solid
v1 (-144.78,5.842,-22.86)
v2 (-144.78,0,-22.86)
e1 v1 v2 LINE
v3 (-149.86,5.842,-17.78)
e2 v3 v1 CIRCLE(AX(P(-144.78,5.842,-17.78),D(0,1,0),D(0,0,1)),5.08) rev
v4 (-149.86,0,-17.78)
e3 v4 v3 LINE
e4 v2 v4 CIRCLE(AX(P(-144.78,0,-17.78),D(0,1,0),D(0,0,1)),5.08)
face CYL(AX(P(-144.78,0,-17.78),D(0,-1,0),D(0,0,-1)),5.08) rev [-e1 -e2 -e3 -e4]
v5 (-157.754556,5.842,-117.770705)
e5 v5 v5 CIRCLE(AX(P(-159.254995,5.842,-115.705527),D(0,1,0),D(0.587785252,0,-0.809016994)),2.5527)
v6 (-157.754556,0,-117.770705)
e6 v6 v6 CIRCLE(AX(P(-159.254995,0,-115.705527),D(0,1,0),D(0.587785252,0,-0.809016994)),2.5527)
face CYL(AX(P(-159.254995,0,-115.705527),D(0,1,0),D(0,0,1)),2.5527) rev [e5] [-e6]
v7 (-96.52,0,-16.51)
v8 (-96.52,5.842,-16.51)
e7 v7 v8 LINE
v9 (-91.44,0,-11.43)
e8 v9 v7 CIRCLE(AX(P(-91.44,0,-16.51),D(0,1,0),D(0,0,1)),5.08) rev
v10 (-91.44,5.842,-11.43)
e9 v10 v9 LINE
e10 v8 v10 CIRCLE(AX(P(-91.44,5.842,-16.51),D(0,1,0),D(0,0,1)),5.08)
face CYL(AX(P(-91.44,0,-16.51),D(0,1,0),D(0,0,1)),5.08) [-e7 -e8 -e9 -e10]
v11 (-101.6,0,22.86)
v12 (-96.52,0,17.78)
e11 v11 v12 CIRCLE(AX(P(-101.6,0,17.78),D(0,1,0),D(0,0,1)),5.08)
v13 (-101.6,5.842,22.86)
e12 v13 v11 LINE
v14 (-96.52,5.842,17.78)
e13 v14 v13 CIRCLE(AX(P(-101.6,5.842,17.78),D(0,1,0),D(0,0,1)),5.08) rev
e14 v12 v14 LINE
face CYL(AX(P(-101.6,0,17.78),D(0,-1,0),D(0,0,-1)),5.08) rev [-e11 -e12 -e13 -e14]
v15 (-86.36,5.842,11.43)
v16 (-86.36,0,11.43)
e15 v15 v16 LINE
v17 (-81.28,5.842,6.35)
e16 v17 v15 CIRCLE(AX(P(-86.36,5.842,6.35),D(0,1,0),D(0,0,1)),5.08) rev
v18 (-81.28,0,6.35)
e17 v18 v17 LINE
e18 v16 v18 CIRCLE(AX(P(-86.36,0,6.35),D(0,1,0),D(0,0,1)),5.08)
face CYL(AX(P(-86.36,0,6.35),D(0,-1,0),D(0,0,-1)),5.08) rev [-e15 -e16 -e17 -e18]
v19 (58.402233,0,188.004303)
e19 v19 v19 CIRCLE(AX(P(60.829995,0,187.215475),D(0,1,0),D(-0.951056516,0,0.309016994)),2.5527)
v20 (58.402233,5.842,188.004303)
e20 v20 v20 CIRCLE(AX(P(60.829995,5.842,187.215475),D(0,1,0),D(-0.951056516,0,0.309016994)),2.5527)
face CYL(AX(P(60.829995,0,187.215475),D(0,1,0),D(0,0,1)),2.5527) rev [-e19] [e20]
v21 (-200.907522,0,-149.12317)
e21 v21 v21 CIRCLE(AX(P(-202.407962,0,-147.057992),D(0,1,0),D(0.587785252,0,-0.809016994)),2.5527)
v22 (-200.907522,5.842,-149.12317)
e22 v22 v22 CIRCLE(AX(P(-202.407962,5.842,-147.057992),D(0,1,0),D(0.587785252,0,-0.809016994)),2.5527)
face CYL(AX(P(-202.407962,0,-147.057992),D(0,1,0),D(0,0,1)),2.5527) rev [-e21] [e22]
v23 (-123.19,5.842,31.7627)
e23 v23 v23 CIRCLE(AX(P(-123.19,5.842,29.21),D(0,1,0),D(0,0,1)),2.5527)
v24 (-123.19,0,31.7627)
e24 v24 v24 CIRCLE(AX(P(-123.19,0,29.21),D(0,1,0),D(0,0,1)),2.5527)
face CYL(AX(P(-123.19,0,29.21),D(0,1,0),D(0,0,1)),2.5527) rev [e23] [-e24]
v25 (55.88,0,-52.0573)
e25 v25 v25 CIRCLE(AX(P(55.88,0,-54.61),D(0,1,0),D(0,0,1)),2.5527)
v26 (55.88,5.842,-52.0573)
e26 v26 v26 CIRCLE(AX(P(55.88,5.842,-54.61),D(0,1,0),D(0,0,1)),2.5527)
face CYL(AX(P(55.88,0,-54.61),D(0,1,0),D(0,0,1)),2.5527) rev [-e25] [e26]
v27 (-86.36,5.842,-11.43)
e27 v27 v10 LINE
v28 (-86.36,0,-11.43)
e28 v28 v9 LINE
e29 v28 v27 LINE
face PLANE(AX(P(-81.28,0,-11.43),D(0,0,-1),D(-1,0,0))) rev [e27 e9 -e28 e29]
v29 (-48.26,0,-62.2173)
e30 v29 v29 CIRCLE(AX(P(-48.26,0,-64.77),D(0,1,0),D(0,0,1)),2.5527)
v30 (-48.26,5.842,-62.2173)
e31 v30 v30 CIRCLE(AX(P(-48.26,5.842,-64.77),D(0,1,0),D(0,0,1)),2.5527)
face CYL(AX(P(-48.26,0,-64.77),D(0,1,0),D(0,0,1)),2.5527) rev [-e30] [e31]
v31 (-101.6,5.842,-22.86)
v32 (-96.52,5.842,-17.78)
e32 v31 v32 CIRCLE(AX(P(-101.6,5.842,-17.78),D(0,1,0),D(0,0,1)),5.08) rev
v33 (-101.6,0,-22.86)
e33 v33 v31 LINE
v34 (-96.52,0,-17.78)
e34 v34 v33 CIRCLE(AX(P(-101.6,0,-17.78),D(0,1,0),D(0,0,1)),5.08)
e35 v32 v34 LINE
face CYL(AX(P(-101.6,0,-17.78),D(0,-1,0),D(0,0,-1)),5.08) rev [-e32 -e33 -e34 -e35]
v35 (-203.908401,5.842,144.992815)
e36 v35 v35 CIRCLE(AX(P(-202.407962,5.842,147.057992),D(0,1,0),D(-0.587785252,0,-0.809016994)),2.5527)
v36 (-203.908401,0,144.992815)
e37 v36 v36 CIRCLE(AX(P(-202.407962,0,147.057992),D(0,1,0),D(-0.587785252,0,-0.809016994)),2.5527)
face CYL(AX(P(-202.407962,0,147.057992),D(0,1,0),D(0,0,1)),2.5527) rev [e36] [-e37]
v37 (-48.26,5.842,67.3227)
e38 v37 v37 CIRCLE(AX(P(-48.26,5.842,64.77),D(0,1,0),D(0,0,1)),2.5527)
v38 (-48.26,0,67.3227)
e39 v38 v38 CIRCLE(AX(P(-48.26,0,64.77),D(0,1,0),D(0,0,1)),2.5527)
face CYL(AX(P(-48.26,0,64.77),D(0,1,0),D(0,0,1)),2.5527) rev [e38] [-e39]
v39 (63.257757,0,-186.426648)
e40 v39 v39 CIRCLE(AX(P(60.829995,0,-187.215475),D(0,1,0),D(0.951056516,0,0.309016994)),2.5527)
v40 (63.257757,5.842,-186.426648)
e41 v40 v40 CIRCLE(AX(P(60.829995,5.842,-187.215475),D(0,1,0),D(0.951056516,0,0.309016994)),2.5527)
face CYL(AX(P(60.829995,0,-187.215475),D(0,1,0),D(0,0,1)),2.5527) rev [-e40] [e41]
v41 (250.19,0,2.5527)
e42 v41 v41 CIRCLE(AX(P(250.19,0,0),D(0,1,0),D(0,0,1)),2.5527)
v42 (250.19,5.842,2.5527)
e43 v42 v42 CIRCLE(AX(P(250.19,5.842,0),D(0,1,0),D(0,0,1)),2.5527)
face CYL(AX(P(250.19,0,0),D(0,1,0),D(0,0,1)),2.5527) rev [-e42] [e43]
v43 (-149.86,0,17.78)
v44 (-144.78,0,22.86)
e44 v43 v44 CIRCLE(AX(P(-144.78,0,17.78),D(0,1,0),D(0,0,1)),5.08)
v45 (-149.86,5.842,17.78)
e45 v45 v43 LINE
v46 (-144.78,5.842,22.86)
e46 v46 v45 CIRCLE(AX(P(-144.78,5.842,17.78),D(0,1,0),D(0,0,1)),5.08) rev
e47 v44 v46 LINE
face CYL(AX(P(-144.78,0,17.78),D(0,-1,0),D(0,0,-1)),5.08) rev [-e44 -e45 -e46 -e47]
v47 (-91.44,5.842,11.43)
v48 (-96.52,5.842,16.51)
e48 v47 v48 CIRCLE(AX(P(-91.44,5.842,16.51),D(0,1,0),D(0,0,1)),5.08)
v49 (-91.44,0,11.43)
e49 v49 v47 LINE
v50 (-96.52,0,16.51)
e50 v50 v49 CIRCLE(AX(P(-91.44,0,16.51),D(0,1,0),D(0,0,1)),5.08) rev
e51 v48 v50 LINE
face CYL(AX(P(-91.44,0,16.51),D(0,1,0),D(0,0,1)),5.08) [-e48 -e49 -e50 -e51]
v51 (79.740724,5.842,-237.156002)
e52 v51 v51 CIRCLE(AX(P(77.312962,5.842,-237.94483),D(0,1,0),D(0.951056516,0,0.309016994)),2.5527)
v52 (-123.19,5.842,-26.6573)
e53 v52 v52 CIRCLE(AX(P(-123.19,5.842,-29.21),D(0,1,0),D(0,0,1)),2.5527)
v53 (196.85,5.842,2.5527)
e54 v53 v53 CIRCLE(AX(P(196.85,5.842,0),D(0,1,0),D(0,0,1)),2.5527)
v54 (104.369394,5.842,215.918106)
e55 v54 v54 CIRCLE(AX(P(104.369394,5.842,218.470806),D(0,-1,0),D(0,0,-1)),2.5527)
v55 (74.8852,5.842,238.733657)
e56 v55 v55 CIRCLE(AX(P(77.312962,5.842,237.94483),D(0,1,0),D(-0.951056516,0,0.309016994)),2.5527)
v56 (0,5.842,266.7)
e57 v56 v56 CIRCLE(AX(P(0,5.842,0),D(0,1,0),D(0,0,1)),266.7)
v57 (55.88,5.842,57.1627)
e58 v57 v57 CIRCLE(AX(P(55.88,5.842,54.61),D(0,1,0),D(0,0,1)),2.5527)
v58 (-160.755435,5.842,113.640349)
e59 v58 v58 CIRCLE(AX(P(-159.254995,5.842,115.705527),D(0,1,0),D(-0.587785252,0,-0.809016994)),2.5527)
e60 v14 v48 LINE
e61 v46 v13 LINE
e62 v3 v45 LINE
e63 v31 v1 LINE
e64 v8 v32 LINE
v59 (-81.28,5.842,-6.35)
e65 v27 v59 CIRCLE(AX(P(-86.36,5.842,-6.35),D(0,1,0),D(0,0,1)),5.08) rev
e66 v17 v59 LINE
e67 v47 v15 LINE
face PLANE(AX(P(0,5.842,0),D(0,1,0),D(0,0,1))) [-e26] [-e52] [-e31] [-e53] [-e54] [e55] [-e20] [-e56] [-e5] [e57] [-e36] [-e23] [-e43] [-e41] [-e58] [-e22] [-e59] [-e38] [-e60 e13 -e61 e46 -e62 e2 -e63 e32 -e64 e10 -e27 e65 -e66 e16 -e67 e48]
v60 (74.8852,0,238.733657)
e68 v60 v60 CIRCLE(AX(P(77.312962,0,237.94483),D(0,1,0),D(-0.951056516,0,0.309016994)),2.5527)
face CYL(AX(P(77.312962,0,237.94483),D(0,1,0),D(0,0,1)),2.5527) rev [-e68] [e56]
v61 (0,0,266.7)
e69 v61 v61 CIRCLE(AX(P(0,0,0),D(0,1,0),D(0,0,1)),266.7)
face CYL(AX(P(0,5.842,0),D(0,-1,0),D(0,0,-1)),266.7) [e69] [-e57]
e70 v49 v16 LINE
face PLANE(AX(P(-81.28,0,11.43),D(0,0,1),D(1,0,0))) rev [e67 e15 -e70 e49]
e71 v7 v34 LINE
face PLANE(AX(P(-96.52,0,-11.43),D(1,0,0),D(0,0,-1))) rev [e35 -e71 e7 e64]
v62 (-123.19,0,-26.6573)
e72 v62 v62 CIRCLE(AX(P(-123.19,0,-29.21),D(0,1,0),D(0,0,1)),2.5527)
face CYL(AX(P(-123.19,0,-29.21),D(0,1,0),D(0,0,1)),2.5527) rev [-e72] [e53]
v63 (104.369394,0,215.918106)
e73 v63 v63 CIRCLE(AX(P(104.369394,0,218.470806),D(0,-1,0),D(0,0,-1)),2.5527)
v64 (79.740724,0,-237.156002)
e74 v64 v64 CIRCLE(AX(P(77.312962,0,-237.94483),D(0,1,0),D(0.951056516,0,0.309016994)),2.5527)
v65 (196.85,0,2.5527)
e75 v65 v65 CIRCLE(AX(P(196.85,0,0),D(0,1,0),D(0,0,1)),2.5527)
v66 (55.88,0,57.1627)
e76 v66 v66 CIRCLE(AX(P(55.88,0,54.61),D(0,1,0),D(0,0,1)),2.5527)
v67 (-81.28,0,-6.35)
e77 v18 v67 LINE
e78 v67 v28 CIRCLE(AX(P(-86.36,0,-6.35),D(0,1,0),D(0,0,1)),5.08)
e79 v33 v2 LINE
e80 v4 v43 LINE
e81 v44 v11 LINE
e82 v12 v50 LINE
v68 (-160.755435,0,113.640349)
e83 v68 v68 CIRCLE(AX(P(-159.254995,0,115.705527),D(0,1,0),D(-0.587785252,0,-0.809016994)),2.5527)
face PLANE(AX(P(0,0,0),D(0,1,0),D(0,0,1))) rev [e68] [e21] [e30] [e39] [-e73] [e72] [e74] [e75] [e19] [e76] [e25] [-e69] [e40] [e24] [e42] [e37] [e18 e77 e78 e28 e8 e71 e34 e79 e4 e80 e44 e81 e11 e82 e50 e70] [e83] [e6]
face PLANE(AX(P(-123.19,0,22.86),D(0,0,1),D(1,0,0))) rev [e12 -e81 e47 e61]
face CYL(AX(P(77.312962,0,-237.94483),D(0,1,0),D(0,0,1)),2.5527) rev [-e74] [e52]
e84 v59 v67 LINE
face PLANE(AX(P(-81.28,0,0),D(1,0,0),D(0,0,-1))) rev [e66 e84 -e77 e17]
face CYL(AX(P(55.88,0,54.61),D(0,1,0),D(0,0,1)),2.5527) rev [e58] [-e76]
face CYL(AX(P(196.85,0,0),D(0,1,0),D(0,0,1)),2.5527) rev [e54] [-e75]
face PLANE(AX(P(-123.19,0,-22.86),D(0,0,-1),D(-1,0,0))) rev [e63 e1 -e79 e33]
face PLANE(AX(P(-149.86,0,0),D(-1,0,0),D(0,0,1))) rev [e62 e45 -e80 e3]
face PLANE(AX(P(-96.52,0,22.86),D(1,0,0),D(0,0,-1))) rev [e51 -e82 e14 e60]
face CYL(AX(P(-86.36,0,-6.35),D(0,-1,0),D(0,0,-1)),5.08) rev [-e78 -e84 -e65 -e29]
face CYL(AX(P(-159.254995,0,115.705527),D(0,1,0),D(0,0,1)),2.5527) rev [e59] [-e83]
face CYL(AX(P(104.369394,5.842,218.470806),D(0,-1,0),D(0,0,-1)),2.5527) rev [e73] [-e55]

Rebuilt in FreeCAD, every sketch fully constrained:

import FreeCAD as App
import Part
import Sketcher
Q = App.Units.Quantity


def edges_at(feature, points):
    """Names of the edges that pass closest to the given points."""
    edges = feature.Shape.Edges
    near = lambda p: min(range(len(edges)), key=lambda i: edges[i].distToShape(Part.Vertex(*p))[0])
    return sorted({f"Edge{near(p) + 1}" for p in points})


def add_polygon(sketch, points):
    """Adds a closed chain of lines whose ends are joined by coincident constraints."""
    first, n = sketch.GeometryCount, len(points)
    for a, b in zip(points, points[1:] + points[:1]):
        sketch.addGeometry(Part.LineSegment(App.Vector(*a, 0), App.Vector(*b, 0)), False)
    for i in range(n):
        sketch.addConstraint(Sketcher.Constraint("Coincident", first + i, 2, first + (i + 1) % n, 1))

doc = App.newDocument("Part")
body = doc.addObject("PartDesign::Body", "Body")

sketch1 = body.newObject("Sketcher::SketchObject", "Sketch")
sketch1.AttachmentSupport = (doc.getObject("XZ_Plane"), [""])
sketch1.MapMode = "FlatFace"
sketch1.addGeometry(Part.Circle(App.Vector(0, 0, 0), App.Vector(0, 0, 1), 267), False)
sketch1.addConstraint([
    Sketcher.Constraint("Coincident", 0, 3, -1, 1),
    Sketcher.Constraint("Diameter", 0, Q("21 in")),
])
pad1 = body.newObject("PartDesign::Pad", "Pad")
pad1.Profile = sketch1
pad1.Length = Q("0.23 in")
pad1.Reversed = True

sketch2 = body.newObject("Sketcher::SketchObject", "Sketch001")
sketch2.AttachmentSupport = (doc.getObject("XZ_Plane"), [""])
sketch2.MapMode = "FlatFace"
sketch2.AttachmentOffset = App.Placement(App.Vector(0, 0, -0.23 * 25.4), App.Rotation())
sketch2.addGeometry([
    Part.Circle(App.Vector(55.9, -54.6, 0), App.Vector(0, 0, 1), 2.6),
    Part.Circle(App.Vector(-48.3, -64.8, 0), App.Vector(0, 0, 1), 2.6),
    Part.Circle(App.Vector(-48.3, 64.8, 0), App.Vector(0, 0, 1), 2.6),
    Part.Circle(App.Vector(55.9, 54.6, 0), App.Vector(0, 0, 1), 2.6),
    Part.Circle(App.Vector(-123.2, -29.2, 0), App.Vector(0, 0, 1), 2.6),
    Part.Circle(App.Vector(-123.2, 29.2, 0), App.Vector(0, 0, 1), 2.6),
], False)
sketch2.addConstraint([
    Sketcher.Constraint("Equal", 0, 1),
    Sketcher.Constraint("Equal", 1, 2),
    Sketcher.Constraint("Equal", 2, 3),
    Sketcher.Constraint("Equal", 3, 4),
    Sketcher.Constraint("Equal", 4, 5),
    Sketcher.Constraint("Symmetric", 1, 3, 2, 3, -1),
    Sketcher.Constraint("Symmetric", 0, 3, 3, 3, -1),
    Sketcher.Constraint("Symmetric", 4, 3, 5, 3, -1),
    Sketcher.Constraint("Diameter", 0, Q("0.201 in")),
    Sketcher.Constraint("DistanceY", 0, 3, 4, 3, Q("1 in")),
    Sketcher.Constraint("DistanceX", -1, 1, 0, 3, Q("2.2 in")),
    Sketcher.Constraint("DistanceX", 1, 3, -1, 1, Q("1.9 in")),
    Sketcher.Constraint("DistanceY", 1, 3, 0, 3, Q("0.4 in")),
    Sketcher.Constraint("DistanceY", 1, 3, 2, 3, Q("5.1 in")),
    Sketcher.Constraint("DistanceX", 4, 3, -1, 1, Q("4.85 in")),
])
pocket1 = body.newObject("PartDesign::Pocket", "Pocket")
pocket1.Profile = sketch2
pocket1.Type = "ThroughAll"
pocket1.Reversed = True

sketch3 = body.newObject("Sketcher::SketchObject", "Sketch002")
sketch3.AttachmentSupport = (doc.getObject("XZ_Plane"), [""])
sketch3.MapMode = "FlatFace"
sketch3.AttachmentOffset = App.Placement(App.Vector(0, 0, -0.23 * 25.4), App.Rotation())
add_polygon(sketch3, [(-150, -23), (-150, 23), (-97, 23), (-97, 11), (-81, 11), (-81, -11), (-97, -11), (-97, -23)])
sketch3.addConstraint([
    Sketcher.Constraint("Vertical", 0),
    Sketcher.Constraint("Horizontal", 1),
    Sketcher.Constraint("Vertical", 2),
    Sketcher.Constraint("Horizontal", 3),
    Sketcher.Constraint("Vertical", 4),
    Sketcher.Constraint("Horizontal", 5),
    Sketcher.Constraint("Vertical", 6),
    Sketcher.Constraint("Horizontal", 7),
    Sketcher.Constraint("Symmetric", 2, 2, 5, 2, -1),
    Sketcher.Constraint("Equal", 2, 6),
    Sketcher.Constraint("DistanceX", 1, 1, 1, 2, Q("2.1 in")),
    Sketcher.Constraint("DistanceX", 3, 1, 3, 2, Q("0.6 in")),
    Sketcher.Constraint("DistanceY", 0, 1, 0, 2, Q("1.8 in")),
    Sketcher.Constraint("DistanceY", 4, 2, 4, 1, Q("0.9 in")),
    Sketcher.Constraint("DistanceX", 0, 2, -1, 1, Q("5.9 in")),
])
pocket2 = body.newObject("PartDesign::Pocket", "Pocket001")
pocket2.Profile = sketch3
pocket2.Type = "ThroughAll"
pocket2.Reversed = True
doc.recompute()

fillet = body.newObject("PartDesign::Fillet", "Fillet")
fillet.Base = (pocket2, edges_at(pocket2, [
    (-81.28, 2.921, -11.43),
    (-81.28, 2.921, 11.43),
    (-96.52, 2.921, 11.43),
    (-96.52, 2.921, 22.86),
    (-149.86, 2.921, 22.86),
    (-149.86, 2.921, -22.86),
    (-96.52, 2.921, -22.86),
    (-96.52, 2.921, -11.43),
]))
fillet.Radius = Q("0.2 in")

sketch4 = body.newObject("Sketcher::SketchObject", "Sketch003")
sketch4.AttachmentSupport = (doc.getObject("XZ_Plane"), [""])
sketch4.MapMode = "FlatFace"
sketch4.AttachmentOffset = App.Placement(App.Vector(0, 0, -0.23 * 25.4), App.Rotation())
sketch4.addGeometry([
    Part.Circle(App.Vector(250.2, 0, 0), App.Vector(0, 0, 1), 2.6),
    Part.Circle(App.Vector(196.8, 0, 0), App.Vector(0, 0, 1), 2.6),
], False)
sketch4.addConstraint([
    Sketcher.Constraint("Equal", 0, 1),
    Sketcher.Constraint("PointOnObject", 0, 3, -1),
    Sketcher.Constraint("PointOnObject", 1, 3, -1),
    Sketcher.Constraint("Diameter", 0, Q("0.201 in")),
    Sketcher.Constraint("DistanceX", 1, 3, 0, 3, Q("2.1 in")),
    Sketcher.Constraint("DistanceX", -1, 1, 0, 3, Q("9.85 in")),
])
pocket3 = body.newObject("PartDesign::Pocket", "Pocket002")
pocket3.Profile = sketch4
pocket3.Type = "ThroughAll"
pocket3.Reversed = True
doc.recompute()

polarpattern = body.newObject("PartDesign::PolarPattern", "PolarPattern")
polarpattern.Originals = [pocket3]
polarpattern.Axis = (doc.getObject("Y_Axis"), [""])
polarpattern.Angle = 360
polarpattern.Occurrences = 5
body.Tip = polarpattern

sketch5 = body.newObject("Sketcher::SketchObject", "Sketch004")
sketch5.AttachmentSupport = (doc.getObject("XZ_Plane"), [""])
sketch5.MapMode = "FlatFace"
sketch5.addGeometry(Part.Circle(App.Vector(104.4, 218.5, 0), App.Vector(0, 0, 1), 2.6), False)
sketch5.addConstraint([
    Sketcher.Constraint("Diameter", 0, Q("0.201 in")),
    Sketcher.Constraint("DistanceX", -1, 1, 0, 3, 104.369394),
    Sketcher.Constraint("DistanceY", -1, 1, 0, 3, 218.470806),
])
pocket4 = body.newObject("PartDesign::Pocket", "Pocket003")
pocket4.Profile = sketch5
pocket4.Type = "ThroughAll"

doc.recompute()
